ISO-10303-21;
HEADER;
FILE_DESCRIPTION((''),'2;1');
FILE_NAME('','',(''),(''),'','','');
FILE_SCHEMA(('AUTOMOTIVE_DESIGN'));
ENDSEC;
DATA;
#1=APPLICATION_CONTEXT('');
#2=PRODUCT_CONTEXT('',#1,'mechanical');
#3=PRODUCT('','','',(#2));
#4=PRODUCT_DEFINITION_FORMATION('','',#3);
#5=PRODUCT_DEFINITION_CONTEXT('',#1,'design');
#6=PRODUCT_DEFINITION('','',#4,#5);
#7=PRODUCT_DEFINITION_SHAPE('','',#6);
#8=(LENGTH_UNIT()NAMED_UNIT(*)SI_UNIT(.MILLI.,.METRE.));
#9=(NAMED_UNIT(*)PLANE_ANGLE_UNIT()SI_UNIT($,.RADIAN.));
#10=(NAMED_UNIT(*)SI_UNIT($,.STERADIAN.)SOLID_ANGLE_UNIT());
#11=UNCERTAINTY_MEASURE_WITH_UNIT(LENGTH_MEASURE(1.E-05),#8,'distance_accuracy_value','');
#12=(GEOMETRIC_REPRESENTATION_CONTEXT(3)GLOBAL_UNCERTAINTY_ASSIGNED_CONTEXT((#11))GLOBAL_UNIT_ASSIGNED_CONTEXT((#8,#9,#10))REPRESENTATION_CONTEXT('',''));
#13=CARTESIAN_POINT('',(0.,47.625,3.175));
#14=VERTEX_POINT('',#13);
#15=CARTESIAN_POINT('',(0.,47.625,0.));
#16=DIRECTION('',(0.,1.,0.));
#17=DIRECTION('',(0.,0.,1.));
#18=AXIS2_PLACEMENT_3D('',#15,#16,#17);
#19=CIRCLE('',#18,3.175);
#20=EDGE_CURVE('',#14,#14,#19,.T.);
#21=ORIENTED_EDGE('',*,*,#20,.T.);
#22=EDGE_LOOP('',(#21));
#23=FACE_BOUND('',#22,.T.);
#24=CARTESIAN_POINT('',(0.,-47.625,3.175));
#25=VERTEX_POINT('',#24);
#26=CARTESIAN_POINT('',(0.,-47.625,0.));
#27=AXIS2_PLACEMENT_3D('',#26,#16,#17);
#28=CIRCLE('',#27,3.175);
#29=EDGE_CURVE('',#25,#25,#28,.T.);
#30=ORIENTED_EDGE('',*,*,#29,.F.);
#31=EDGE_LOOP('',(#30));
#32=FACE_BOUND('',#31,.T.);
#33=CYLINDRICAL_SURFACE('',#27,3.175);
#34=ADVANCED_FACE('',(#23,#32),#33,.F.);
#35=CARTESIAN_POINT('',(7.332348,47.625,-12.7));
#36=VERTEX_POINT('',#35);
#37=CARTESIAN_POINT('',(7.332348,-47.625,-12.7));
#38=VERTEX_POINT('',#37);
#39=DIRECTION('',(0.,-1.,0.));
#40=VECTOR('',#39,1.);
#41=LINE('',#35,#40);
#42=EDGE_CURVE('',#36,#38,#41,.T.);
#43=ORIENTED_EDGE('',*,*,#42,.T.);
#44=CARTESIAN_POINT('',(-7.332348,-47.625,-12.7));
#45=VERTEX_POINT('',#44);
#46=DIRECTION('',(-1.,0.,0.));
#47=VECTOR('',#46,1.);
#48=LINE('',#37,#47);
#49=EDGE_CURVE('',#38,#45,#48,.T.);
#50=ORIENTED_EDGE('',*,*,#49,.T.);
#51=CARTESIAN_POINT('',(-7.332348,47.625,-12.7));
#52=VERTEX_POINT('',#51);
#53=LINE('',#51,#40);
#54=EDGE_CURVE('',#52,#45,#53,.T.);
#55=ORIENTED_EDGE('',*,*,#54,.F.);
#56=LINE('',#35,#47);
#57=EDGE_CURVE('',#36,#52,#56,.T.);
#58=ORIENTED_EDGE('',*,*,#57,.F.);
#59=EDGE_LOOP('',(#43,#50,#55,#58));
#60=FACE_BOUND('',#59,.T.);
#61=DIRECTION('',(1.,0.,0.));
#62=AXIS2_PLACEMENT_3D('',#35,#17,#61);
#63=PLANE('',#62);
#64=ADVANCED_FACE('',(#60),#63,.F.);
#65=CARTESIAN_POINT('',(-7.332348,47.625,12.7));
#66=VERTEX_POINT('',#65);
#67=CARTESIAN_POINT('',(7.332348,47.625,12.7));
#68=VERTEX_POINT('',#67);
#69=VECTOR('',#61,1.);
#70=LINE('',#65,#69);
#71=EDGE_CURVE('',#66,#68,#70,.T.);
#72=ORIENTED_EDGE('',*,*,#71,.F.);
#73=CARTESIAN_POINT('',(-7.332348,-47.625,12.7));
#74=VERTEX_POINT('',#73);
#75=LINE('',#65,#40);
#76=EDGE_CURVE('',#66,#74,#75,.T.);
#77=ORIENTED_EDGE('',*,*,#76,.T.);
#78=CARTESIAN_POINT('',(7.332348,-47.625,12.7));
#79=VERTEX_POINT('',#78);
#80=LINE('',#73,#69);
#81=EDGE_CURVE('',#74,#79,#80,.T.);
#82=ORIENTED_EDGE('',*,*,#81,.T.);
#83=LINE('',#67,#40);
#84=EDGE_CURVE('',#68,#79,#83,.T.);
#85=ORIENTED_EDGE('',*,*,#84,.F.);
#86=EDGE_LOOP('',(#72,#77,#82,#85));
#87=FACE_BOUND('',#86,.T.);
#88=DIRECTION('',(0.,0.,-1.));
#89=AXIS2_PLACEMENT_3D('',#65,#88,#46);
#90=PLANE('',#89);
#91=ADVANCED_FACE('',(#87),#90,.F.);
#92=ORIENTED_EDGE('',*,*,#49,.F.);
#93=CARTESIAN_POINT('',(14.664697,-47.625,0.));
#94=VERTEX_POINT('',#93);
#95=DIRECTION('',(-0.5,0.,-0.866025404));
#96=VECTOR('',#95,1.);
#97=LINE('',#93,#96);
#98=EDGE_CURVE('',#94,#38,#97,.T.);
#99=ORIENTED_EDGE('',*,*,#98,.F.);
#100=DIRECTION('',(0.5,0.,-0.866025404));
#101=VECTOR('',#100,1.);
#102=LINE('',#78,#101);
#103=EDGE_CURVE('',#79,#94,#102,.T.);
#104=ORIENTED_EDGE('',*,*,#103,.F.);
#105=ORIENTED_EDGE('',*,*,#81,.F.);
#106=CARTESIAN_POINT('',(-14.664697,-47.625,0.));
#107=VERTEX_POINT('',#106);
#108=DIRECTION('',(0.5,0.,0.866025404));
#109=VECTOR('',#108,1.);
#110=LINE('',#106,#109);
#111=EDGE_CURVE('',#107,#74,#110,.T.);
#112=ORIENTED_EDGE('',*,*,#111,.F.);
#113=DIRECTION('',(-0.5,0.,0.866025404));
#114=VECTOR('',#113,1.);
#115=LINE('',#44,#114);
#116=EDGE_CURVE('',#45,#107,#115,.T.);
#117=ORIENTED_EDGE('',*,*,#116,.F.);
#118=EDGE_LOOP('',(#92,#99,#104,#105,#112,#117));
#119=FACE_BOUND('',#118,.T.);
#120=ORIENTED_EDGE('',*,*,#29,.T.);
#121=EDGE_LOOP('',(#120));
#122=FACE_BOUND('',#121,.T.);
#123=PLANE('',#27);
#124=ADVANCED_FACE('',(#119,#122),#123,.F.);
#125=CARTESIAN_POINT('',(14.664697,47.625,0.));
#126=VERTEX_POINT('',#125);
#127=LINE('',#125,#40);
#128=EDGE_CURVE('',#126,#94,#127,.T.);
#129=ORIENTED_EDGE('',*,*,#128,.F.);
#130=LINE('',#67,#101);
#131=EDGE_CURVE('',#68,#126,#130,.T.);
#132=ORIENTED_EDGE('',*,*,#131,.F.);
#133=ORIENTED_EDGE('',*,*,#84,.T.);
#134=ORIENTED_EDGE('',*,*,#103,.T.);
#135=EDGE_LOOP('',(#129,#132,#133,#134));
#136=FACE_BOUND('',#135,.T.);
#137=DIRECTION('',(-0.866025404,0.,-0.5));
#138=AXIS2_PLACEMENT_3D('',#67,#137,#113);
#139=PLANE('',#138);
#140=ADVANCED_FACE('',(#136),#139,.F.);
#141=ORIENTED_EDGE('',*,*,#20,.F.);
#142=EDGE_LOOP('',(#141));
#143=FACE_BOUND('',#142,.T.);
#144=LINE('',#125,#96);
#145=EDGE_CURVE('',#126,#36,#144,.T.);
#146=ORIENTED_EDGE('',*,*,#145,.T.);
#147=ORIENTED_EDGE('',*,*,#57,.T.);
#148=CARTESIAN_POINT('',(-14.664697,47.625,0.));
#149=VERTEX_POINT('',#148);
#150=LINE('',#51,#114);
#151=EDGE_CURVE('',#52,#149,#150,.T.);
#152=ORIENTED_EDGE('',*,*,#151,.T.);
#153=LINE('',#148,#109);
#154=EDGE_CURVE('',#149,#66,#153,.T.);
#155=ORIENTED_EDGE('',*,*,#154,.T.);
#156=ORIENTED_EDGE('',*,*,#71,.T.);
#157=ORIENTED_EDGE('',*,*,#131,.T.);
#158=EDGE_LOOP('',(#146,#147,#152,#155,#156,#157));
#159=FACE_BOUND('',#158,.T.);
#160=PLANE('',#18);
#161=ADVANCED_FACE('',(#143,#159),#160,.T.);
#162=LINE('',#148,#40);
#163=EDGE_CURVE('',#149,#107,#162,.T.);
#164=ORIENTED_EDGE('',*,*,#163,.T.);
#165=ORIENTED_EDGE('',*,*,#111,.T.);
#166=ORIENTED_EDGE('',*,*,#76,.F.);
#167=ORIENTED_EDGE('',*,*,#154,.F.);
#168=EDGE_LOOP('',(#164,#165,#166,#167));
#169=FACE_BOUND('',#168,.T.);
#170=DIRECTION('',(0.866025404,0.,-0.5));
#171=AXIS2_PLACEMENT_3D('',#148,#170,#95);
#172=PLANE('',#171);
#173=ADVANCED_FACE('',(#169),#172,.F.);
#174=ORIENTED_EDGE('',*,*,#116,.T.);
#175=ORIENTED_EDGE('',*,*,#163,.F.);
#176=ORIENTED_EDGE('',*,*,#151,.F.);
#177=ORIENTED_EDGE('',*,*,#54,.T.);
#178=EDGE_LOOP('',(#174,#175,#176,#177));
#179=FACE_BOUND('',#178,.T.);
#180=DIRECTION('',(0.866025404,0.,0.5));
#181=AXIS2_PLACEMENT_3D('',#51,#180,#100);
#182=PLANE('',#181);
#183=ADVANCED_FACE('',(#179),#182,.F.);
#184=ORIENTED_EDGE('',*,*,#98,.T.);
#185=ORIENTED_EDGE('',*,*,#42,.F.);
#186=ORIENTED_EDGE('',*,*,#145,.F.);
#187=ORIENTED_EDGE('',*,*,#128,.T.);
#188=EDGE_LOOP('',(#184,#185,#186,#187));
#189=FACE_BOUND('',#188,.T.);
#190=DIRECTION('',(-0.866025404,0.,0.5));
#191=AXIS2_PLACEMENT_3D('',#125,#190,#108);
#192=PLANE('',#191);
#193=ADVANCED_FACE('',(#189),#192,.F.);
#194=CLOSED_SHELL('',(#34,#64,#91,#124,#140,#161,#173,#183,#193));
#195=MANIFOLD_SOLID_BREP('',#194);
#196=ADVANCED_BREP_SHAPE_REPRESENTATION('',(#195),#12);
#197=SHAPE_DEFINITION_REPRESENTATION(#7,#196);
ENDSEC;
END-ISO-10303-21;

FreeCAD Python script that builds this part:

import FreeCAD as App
import Part
import Sketcher
from FreeCAD import Vector
Q = App.Units.Quantity


def add_polygon(sketch, points):
    """Adds a closed chain of lines whose ends are joined by coincident constraints."""
    first, n = sketch.GeometryCount, len(points)
    for a, b in zip(points, points[1:] + points[:1]):
        sketch.addGeometry(Part.LineSegment(App.Vector(*a, 0), App.Vector(*b, 0)), False)
    for i in range(n):
        sketch.addConstraint(Sketcher.Constraint("Coincident", first + i, 2, first + (i + 1) % n, 1))

doc = App.newDocument("Part")
body = doc.addObject("PartDesign::Body", "Body")

sketch1 = body.newObject("Sketcher::SketchObject", "Sketch")
sketch1.AttachmentSupport = (doc.getObject("XZ_Plane"), [""])
sketch1.MapMode = "FlatFace"
add_polygon(sketch1, [(-15, 0), (-7, 13), (7, 13), (15, 0), (7, -13), (-7, -13)])
sketch1.addConstraint([
    Sketcher.Constraint("Horizontal", 1),
    Sketcher.Constraint("Horizontal", 4),
    Sketcher.Constraint("Symmetric", 0, 2, 3, 2, -1, 1),
    Sketcher.Constraint("Symmetric", 2, 2, 5, 2, -1, 1),
    Sketcher.Constraint("PointOnObject", 2, 2, -1),
    Sketcher.Constraint("Parallel", 2, 5),
    Sketcher.Constraint("Vertical", 1, 2, 3, 2),
    Sketcher.Constraint("Angle", 0, Q("60 deg")),
    Sketcher.Constraint("DistanceY", 3, 2, 1, 2, Q("1 in")),
    Sketcher.Constraint("DistanceX", 1, 1, 1, 2, 14.664697),
])
pad1 = body.newObject("PartDesign::Pad", "Pad")
pad1.Profile = sketch1
pad1.Length = Q("3.75 in")
pad1.Midplane = True

sketch2 = body.newObject("Sketcher::SketchObject", "Sketch001")
sketch2.AttachmentSupport = (doc.getObject("XZ_Plane"), [""])
sketch2.MapMode = "FlatFace"
sketch2.AttachmentOffset = App.Placement(Vector(0, 0, -1.875 * 25.4), App.Rotation())
sketch2.addGeometry(Part.Circle(Vector(0, 0, 0), Vector(0, 0, 1), 3.2), False)
sketch2.addConstraint([
    Sketcher.Constraint("Coincident", 0, 3, -1, 1),
    Sketcher.Constraint("Diameter", 0, Q("0.25 in")),
])
pocket1 = body.newObject("PartDesign::Pocket", "Pocket")
pocket1.Profile = sketch2
pocket1.Type = "ThroughAll"
pocket1.Reversed = True

doc.recompute()
